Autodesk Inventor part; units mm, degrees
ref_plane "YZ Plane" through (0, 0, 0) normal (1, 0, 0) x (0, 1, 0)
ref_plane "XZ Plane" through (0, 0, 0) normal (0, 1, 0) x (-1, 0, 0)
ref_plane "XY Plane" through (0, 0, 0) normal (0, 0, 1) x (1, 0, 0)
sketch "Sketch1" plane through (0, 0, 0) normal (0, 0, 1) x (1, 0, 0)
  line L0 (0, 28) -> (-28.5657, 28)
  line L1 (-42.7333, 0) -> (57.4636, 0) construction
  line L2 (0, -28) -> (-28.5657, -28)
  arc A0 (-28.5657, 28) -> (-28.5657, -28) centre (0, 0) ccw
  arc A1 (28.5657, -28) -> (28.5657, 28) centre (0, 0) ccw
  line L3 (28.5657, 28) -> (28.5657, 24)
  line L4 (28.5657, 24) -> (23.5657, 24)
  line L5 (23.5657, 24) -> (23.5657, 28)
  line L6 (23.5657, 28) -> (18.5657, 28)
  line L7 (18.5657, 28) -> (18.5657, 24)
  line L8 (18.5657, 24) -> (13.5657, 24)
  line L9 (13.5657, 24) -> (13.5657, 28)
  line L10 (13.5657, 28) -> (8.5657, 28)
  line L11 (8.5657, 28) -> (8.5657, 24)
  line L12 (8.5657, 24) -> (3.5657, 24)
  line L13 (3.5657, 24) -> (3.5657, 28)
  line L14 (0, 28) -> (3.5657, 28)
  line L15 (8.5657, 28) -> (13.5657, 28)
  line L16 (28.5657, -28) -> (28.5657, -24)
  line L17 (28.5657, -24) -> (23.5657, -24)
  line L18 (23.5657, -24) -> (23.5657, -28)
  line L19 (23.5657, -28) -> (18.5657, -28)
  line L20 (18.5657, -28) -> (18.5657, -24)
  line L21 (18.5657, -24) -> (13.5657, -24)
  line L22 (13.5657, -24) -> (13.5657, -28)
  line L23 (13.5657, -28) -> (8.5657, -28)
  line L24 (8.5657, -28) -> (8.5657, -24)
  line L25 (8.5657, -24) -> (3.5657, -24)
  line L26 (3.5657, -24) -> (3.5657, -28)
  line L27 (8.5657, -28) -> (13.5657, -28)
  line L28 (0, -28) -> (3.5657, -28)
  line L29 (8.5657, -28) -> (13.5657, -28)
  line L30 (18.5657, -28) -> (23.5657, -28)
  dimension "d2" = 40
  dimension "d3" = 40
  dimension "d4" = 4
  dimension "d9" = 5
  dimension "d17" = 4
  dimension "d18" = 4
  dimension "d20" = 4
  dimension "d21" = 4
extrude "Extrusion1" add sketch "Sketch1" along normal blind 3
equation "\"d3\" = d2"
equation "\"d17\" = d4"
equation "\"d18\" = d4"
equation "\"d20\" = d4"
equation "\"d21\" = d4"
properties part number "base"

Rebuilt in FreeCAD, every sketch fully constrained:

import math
import FreeCAD as App
import Part
import Sketcher
from FreeCAD import Vector

doc = App.newDocument("Part")
body = doc.addObject("PartDesign::Body", "Body")

sketch1 = body.newObject("Sketcher::SketchObject", "Sketch")
sketch1.AttachmentSupport = (doc.getObject("XY_Plane"), [""])
sketch1.MapMode = "FlatFace"
sketch1.addGeometry([
    Part.LineSegment(Vector(3.5657, 28, 0), Vector(-28.5657, 28, 0)),
    Part.ArcOfCircle(Part.Circle(Vector(0, 0, 0), Vector(0, 0, 1), 39.99999), math.radians(135.572982), math.radians(224.427018)),
    Part.LineSegment(Vector(-28.5657, -28, 0), Vector(3.5657, -28, 0)),
    Part.LineSegment(Vector(3.5657, -28, 0), Vector(3.5657, -24, 0)),
    Part.LineSegment(Vector(3.5657, -24, 0), Vector(8.5657, -24, 0)),
    Part.LineSegment(Vector(8.5657, -24, 0), Vector(8.5657, -28, 0)),
    Part.LineSegment(Vector(8.5657, -28, 0), Vector(13.5657, -28, 0)),
    Part.LineSegment(Vector(13.5657, -28, 0), Vector(13.5657, -24, 0)),
    Part.LineSegment(Vector(13.5657, -24, 0), Vector(18.5657, -24, 0)),
    Part.LineSegment(Vector(18.5657, -24, 0), Vector(18.5657, -28, 0)),
    Part.LineSegment(Vector(18.5657, -28, 0), Vector(23.5657, -28, 0)),
    Part.LineSegment(Vector(23.5657, -28, 0), Vector(23.5657, -24, 0)),
    Part.LineSegment(Vector(23.5657, -24, 0), Vector(28.5657, -24, 0)),
    Part.LineSegment(Vector(28.5657, -24, 0), Vector(28.5657, -28, 0)),
    Part.ArcOfCircle(Part.Circle(Vector(0, 0, 0), Vector(0, 0, 1), 39.99999), math.radians(-44.427018), math.radians(44.427018)),
    Part.LineSegment(Vector(28.5657, 28, 0), Vector(28.5657, 24, 0)),
    Part.LineSegment(Vector(28.5657, 24, 0), Vector(23.5657, 24, 0)),
    Part.LineSegment(Vector(23.5657, 24, 0), Vector(23.5657, 28, 0)),
    Part.LineSegment(Vector(23.5657, 28, 0), Vector(18.5657, 28, 0)),
    Part.LineSegment(Vector(18.5657, 28, 0), Vector(18.5657, 24, 0)),
    Part.LineSegment(Vector(18.5657, 24, 0), Vector(13.5657, 24, 0)),
    Part.LineSegment(Vector(13.5657, 24, 0), Vector(13.5657, 28, 0)),
    Part.LineSegment(Vector(13.5657, 28, 0), Vector(8.5657, 28, 0)),
    Part.LineSegment(Vector(8.5657, 28, 0), Vector(8.5657, 24, 0)),
    Part.LineSegment(Vector(8.5657, 24, 0), Vector(3.5657, 24, 0)),
    Part.LineSegment(Vector(3.5657, 24, 0), Vector(3.5657, 28, 0)),
], False)
sketch1.addConstraint([
    Sketcher.Constraint("Coincident", 0, 2, 1, 1),
    Sketcher.Constraint("Coincident", 1, 2, 2, 1),
    Sketcher.Constraint("Coincident", 2, 2, 3, 1),
    Sketcher.Constraint("Coincident", 3, 2, 4, 1),
    Sketcher.Constraint("Coincident", 4, 2, 5, 1),
    Sketcher.Constraint("Coincident", 5, 2, 6, 1),
    Sketcher.Constraint("Coincident", 6, 2, 7, 1),
    Sketcher.Constraint("Coincident", 7, 2, 8, 1),
    Sketcher.Constraint("Coincident", 8, 2, 9, 1),
    Sketcher.Constraint("Coincident", 9, 2, 10, 1),
    Sketcher.Constraint("Coincident", 10, 2, 11, 1),
    Sketcher.Constraint("Coincident", 11, 2, 12, 1),
    Sketcher.Constraint("Coincident", 12, 2, 13, 1),
    Sketcher.Constraint("Coincident", 13, 2, 14, 1),
    Sketcher.Constraint("Coincident", 14, 2, 15, 1),
    Sketcher.Constraint("Coincident", 15, 2, 16, 1),
    Sketcher.Constraint("Coincident", 16, 2, 17, 1),
    Sketcher.Constraint("Coincident", 17, 2, 18, 1),
    Sketcher.Constraint("Coincident", 18, 2, 19, 1),
    Sketcher.Constraint("Coincident", 19, 2, 20, 1),
    Sketcher.Constraint("Coincident", 20, 2, 21, 1),
    Sketcher.Constraint("Coincident", 21, 2, 22, 1),
    Sketcher.Constraint("Coincident", 22, 2, 23, 1),
    Sketcher.Constraint("Coincident", 23, 2, 24, 1),
    Sketcher.Constraint("Coincident", 24, 2, 25, 1),
    Sketcher.Constraint("Coincident", 25, 2, 0, 1),
    Sketcher.Constraint("Horizontal", 0),
    Sketcher.Constraint("Horizontal", 2),
    Sketcher.Constraint("Vertical", 3),
    Sketcher.Constraint("Horizontal", 4),
    Sketcher.Constraint("Vertical", 5),
    Sketcher.Constraint("Horizontal", 6),
    Sketcher.Constraint("Vertical", 7),
    Sketcher.Constraint("Horizontal", 8),
    Sketcher.Constraint("Vertical", 9),
    Sketcher.Constraint("Horizontal", 10),
    Sketcher.Constraint("Vertical", 11),
    Sketcher.Constraint("Horizontal", 12),
    Sketcher.Constraint("Vertical", 13),
    Sketcher.Constraint("Vertical", 15),
    Sketcher.Constraint("Horizontal", 16),
    Sketcher.Constraint("Vertical", 17),
    Sketcher.Constraint("Horizontal", 18),
    Sketcher.Constraint("Vertical", 19),
    Sketcher.Constraint("Horizontal", 20),
    Sketcher.Constraint("Vertical", 21),
    Sketcher.Constraint("Horizontal", 22),
    Sketcher.Constraint("Vertical", 23),
    Sketcher.Constraint("Horizontal", 24),
    Sketcher.Constraint("Vertical", 25),
    Sketcher.Constraint("Coincident", 1, 3, -1, 1),
    Sketcher.Constraint("Coincident", 14, 3, -1, 1),
    Sketcher.Constraint("Equal", 1, 14),
    Sketcher.Constraint("Symmetric", 12, 2, 15, 2, -1),
    Sketcher.Constraint("Symmetric", 10, 2, 17, 2, -1),
    Sketcher.Constraint("Symmetric", 8, 2, 19, 2, -1),
    Sketcher.Constraint("Symmetric", 6, 2, 21, 2, -1),
    Sketcher.Constraint("Symmetric", 4, 2, 23, 2, -1),
    Sketcher.Constraint("Symmetric", 2, 2, 25, 2, -1),
    Sketcher.Constraint("Horizontal", 2, 2, 5, 2),
    Sketcher.Constraint("Horizontal", 4, 2, 7, 2),
    Sketcher.Constraint("Horizontal", 6, 2, 9, 2),
    Sketcher.Constraint("Horizontal", 8, 2, 11, 2),
    Sketcher.Constraint("Horizontal", 10, 2, 13, 2),
    Sketcher.Constraint("Equal", 4, 6),
    Sketcher.Constraint("Equal", 6, 8),
    Sketcher.Constraint("Equal", 8, 10),
    Sketcher.Constraint("Equal", 10, 12),
    Sketcher.Constraint("Radius", 1, 40.0),
    Sketcher.Constraint("DistanceX", 4, 1, 4, 2, 5.0),
    Sketcher.Constraint("DistanceY", 3, 1, 3, 2, 4.0),
    Sketcher.Constraint("DistanceY", -1, 1, 0, 2, 28.0),
])
pad1 = body.newObject("PartDesign::Pad", "Pad")
pad1.Profile = sketch1
pad1.Length = 3

doc.recompute()
